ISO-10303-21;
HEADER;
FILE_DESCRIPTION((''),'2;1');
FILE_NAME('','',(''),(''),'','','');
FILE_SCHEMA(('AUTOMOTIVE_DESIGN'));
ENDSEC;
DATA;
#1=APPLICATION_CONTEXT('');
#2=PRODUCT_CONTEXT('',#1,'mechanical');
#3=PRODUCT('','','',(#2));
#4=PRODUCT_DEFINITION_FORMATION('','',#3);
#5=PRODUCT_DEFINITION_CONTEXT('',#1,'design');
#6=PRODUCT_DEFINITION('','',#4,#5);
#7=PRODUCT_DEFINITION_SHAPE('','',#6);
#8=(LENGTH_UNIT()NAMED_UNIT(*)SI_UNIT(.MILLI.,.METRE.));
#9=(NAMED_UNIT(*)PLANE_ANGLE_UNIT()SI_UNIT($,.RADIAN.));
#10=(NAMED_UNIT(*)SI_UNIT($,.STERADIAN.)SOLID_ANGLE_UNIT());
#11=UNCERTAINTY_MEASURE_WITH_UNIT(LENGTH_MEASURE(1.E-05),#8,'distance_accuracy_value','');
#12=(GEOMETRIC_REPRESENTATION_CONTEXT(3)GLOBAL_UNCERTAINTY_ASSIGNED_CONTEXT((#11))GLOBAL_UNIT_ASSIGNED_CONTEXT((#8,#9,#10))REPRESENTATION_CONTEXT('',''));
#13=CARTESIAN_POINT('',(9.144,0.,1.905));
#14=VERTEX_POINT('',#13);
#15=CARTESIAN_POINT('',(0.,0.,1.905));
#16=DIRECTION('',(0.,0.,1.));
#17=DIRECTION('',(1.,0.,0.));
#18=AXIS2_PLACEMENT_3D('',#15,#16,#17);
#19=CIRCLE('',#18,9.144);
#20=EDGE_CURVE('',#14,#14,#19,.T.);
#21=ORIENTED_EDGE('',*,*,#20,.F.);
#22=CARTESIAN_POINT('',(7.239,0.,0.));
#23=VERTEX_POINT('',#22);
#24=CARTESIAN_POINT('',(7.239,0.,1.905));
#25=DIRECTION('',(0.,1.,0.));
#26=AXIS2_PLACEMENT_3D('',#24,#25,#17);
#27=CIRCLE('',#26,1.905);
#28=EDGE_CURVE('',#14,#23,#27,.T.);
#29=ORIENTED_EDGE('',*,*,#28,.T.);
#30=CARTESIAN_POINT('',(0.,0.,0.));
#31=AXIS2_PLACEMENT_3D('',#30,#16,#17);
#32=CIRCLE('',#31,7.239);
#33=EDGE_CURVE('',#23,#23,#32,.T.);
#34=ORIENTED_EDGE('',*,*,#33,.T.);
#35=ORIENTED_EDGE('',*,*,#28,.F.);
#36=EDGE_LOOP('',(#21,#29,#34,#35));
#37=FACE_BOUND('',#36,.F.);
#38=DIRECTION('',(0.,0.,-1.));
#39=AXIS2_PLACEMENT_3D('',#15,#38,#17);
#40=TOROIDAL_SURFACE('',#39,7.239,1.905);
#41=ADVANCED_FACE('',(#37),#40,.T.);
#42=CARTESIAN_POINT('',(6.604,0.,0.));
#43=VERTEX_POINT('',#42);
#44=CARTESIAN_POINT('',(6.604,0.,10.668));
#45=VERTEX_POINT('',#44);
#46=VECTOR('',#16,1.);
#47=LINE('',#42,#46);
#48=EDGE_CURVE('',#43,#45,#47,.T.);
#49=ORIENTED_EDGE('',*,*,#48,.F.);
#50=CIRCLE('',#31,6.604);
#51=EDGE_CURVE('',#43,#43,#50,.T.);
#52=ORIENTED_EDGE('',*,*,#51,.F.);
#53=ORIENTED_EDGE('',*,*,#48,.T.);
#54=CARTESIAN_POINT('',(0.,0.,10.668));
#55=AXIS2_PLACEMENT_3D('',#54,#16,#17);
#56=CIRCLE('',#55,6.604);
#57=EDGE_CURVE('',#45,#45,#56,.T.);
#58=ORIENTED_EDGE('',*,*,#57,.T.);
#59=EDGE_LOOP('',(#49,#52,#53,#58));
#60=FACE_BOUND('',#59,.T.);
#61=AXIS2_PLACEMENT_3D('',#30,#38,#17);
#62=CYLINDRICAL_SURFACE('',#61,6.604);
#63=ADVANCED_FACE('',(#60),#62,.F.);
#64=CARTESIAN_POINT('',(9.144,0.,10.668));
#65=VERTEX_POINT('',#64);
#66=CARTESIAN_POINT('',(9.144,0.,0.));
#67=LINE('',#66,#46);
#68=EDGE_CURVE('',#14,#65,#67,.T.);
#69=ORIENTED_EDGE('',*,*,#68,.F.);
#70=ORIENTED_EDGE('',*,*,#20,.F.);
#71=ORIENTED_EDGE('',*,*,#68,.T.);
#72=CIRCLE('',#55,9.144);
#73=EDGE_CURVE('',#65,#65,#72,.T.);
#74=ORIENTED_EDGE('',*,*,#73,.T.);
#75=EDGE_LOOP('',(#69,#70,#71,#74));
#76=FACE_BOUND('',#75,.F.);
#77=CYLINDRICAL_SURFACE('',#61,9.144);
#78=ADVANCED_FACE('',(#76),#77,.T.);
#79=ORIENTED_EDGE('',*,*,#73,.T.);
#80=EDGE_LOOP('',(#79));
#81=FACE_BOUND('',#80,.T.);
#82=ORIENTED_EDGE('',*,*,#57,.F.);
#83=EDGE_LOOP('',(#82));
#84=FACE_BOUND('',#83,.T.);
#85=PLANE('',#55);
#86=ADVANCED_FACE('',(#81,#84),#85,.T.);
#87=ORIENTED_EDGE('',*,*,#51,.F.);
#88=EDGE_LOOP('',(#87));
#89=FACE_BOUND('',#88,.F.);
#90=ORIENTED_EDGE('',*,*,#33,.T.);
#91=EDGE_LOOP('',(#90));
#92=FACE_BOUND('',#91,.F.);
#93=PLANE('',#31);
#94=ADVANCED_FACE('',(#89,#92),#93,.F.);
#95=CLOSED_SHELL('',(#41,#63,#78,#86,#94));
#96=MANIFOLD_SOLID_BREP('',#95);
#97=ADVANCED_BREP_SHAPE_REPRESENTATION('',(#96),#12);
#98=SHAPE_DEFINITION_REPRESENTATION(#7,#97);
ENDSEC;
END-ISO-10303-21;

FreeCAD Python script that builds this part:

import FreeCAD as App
import Part
import Sketcher

V = App.Vector
Q = App.Units.Quantity


def edges_at(feature, points):
    """Names of the edges that pass closest to the given points."""
    edges = feature.Shape.Edges
    near = lambda p: min(range(len(edges)), key=lambda i: edges[i].distToShape(Part.Vertex(*p))[0])
    return sorted({f"Edge{near(p) + 1}" for p in points})

doc = App.newDocument("Part")
params = doc.addObject("Spreadsheet::Sheet", "Params")
for row, (alias, value) in enumerate([
    ("sketch1_diameter", "0.52 in"),
    ("sketch1_diameter2", "0.72 in"),
    ("pad1_length", "0.42 in"),
    ("fillet_radius", "0.075 in"),
], start=1):
    params.set(f"A{row}", alias)
    params.set(f"B{row}", "=" + value)
    params.setAlias(f"B{row}", alias)

body = doc.addObject("PartDesign::Body", "Body")

sketch1 = body.newObject("Sketcher::SketchObject", "Sketch")
sketch1.AttachmentSupport = (doc.getObject("XY_Plane"), [""])
sketch1.MapMode = "FlatFace"
sketch1.addGeometry([
    Part.Circle(V(0, 0, 0), V(0, 0, 1), 9),
    Part.Circle(V(0, 0, 0), V(0, 0, 1), 7),
], False)
sketch1.addConstraint([
    Sketcher.Constraint("Coincident", 0, 3, -1, 1),
    Sketcher.Constraint("Coincident", 1, 3, -1, 1),
    Sketcher.Constraint("Diameter", 1, Q("0.52 in")),
    Sketcher.Constraint("Diameter", 0, Q("0.72 in")),
])
sketch1.setExpression("Constraints[2]", "Params.sketch1_diameter")
sketch1.setExpression("Constraints[3]", "Params.sketch1_diameter2")
pad1 = body.newObject("PartDesign::Pad", "Pad")
pad1.Profile = sketch1
pad1.setExpression("Length", "Params.pad1_length")
doc.recompute()

fillet = body.newObject("PartDesign::Fillet", "Fillet")
fillet.Base = (pad1, edges_at(pad1, [(-9.144, 0, 0)]))
fillet.setExpression("Radius", "Params.fillet_radius")

doc.recompute()
